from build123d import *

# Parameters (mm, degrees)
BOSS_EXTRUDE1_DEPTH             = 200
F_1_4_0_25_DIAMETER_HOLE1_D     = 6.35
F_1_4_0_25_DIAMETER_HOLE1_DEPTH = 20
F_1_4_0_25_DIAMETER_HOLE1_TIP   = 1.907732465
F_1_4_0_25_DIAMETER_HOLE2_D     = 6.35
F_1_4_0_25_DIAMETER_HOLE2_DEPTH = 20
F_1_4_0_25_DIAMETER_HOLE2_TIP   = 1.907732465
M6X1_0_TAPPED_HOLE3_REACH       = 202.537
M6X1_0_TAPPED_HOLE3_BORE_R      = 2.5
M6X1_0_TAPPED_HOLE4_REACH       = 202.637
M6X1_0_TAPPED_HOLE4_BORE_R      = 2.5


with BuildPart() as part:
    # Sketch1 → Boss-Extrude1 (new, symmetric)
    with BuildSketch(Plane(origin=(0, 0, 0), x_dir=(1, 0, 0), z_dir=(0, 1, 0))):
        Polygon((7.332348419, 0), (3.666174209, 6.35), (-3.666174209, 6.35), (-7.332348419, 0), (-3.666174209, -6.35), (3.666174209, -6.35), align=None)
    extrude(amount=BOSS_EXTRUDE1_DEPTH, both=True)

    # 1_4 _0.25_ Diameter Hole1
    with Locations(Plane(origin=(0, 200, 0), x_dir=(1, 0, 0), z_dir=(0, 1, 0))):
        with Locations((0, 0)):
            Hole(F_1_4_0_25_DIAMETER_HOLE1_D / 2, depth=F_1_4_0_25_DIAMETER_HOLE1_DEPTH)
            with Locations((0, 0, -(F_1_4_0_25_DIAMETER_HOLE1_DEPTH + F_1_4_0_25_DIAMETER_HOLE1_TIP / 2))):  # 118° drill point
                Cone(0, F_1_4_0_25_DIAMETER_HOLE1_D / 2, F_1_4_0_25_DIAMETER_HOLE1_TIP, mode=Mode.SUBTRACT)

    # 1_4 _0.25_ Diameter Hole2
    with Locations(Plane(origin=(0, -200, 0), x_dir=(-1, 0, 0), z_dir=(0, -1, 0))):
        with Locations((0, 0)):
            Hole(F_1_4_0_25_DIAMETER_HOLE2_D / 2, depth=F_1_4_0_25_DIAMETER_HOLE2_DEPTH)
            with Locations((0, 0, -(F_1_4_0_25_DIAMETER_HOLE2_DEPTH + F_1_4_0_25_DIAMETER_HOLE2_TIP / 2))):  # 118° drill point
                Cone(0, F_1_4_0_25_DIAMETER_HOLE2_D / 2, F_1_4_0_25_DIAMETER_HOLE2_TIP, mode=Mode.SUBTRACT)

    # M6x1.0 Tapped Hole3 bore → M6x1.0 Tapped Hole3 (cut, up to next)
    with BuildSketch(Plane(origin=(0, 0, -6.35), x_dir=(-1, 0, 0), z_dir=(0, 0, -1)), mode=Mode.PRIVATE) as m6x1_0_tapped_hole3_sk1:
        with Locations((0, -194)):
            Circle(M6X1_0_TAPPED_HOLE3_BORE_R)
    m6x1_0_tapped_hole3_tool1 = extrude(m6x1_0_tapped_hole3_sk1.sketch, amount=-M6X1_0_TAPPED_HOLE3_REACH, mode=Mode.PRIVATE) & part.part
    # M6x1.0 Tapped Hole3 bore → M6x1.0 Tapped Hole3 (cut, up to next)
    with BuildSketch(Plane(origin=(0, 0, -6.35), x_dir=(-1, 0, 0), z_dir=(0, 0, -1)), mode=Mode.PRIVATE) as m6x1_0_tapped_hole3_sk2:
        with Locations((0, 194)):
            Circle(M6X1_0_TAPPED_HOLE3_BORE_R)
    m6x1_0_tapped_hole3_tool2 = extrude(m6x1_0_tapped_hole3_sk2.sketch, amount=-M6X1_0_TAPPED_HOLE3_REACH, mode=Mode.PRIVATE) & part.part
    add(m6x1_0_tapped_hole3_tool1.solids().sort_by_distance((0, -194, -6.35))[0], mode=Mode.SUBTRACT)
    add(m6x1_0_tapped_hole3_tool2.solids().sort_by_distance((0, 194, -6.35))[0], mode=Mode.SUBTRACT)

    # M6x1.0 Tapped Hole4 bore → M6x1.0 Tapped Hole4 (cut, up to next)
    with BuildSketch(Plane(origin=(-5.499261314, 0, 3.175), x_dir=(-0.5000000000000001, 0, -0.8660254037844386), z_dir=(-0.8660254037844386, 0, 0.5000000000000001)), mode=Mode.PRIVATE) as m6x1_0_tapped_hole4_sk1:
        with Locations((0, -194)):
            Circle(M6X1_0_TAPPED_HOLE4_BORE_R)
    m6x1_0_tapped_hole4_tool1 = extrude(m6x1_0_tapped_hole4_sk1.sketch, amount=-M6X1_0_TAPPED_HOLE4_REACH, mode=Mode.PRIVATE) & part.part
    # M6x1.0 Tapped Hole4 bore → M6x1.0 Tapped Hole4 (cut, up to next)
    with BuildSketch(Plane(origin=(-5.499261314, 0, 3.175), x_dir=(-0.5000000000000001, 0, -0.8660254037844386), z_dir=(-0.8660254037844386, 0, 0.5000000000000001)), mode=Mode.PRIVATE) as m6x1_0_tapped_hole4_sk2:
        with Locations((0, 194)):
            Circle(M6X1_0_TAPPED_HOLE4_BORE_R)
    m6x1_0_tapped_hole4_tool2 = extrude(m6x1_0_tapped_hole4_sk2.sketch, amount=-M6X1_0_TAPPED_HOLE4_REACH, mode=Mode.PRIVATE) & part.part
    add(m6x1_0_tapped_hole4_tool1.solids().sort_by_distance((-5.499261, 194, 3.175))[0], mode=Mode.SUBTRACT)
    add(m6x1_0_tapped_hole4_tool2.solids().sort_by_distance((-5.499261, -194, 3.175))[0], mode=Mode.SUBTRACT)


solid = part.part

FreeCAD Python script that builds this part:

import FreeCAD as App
import Part
import Sketcher

V = App.Vector
Q = App.Units.Quantity

doc = App.newDocument("Part")
body = doc.addObject("PartDesign::Body", "Body")

sketch1 = doc.addObject("Sketcher::SketchObject", "Sketch")
body.addObject(sketch1)
sketch1.AttachmentSupport = (doc.XZ_Plane, [""])
sketch1.MapMode = "FlatFace"
sketch1.addGeometry([
    Part.LineSegment(V(7, 0, 0), V(4, -6, 0)),
    Part.LineSegment(V(4, -6, 0), V(-4, -6, 0)),
    Part.LineSegment(V(-4, -6, 0), V(-7, 0, 0)),
    Part.LineSegment(V(-7, 0, 0), V(-4, 6, 0)),
    Part.LineSegment(V(-4, 6, 0), V(4, 6, 0)),
    Part.LineSegment(V(4, 6, 0), V(7, 0, 0)),
], False)
sketch1.addConstraint([
    Sketcher.Constraint("Coincident", 0, 2, 1, 1),
    Sketcher.Constraint("Coincident", 1, 2, 2, 1),
    Sketcher.Constraint("Coincident", 2, 2, 3, 1),
    Sketcher.Constraint("Coincident", 3, 2, 4, 1),
    Sketcher.Constraint("Coincident", 4, 2, 5, 1),
    Sketcher.Constraint("Coincident", 5, 2, 0, 1),
    Sketcher.Constraint("Horizontal", 1),
    Sketcher.Constraint("Horizontal", 4),
    Sketcher.Constraint("Symmetric", 0, 2, 3, 2, -1, 1),
    Sketcher.Constraint("Symmetric", 2, 2, 5, 2, -1, 1),
    Sketcher.Constraint("PointOnObject", 2, 2, -1),
    Sketcher.Constraint("Parallel", 2, 5),
    Sketcher.Constraint("Vertical", 1, 2, 3, 2),
    Sketcher.Constraint("Angle", 0, Q("-120 deg")),
    Sketcher.Constraint("DistanceY", 1, 2, 3, 2, Q("12.7 mm")),
    Sketcher.Constraint("DistanceX", 1, 2, 1, 1, Q("7.332348 mm")),
])
pad1 = doc.addObject("PartDesign::Pad", "Pad")
body.addObject(pad1)
pad1.Profile = sketch1
pad1.Length = 400
pad1.Midplane = True

sketch2 = doc.addObject("Sketcher::SketchObject", "Sketch001")
body.addObject(sketch2)
sketch2.AttachmentSupport = (doc.XZ_Plane, [""])
sketch2.MapMode = "FlatFace"
sketch2.AttachmentOffset = App.Placement(V(0, 0, -200), App.Rotation())
sketch2.addGeometry(Part.Circle(V(0, 0, 0), V(0, 0, 1), 3.2), False)
sketch2.addConstraint([
    Sketcher.Constraint("Coincident", 0, 3, -1, 1),
    Sketcher.Constraint("Diameter", 0, Q("6.35 mm")),
])
doc.recompute()
hole = doc.addObject("PartDesign::Hole", "Hole")
body.addObject(hole)
hole.Profile = sketch2
hole.ThreadType = "None"
hole.Diameter = 6.35
hole.DepthType = "Dimension"
hole.Depth = 20
hole.DrillPoint = "Angled"
hole.DrillPointAngle = 118
hole.Reversed = True

sketch3 = doc.addObject("Sketcher::SketchObject", "Sketch002")
body.addObject(sketch3)
sketch3.AttachmentSupport = (doc.XZ_Plane, [""])
sketch3.MapMode = "FlatFace"
sketch3.AttachmentOffset = App.Placement(V(0, 0, 200), App.Rotation())
sketch3.addGeometry(Part.Circle(V(0, 0, 0), V(0, 0, 1), 3.2), False)
sketch3.addConstraint([
    Sketcher.Constraint("Coincident", 0, 3, -1, 1),
    Sketcher.Constraint("Diameter", 0, Q("6.35 mm")),
])
doc.recompute()
hole2 = doc.addObject("PartDesign::Hole", "Hole001")
body.addObject(hole2)
hole2.Profile = sketch3
hole2.ThreadType = "None"
hole2.Diameter = 6.35
hole2.DepthType = "Dimension"
hole2.Depth = 20
hole2.DrillPoint = "Angled"
hole2.DrillPointAngle = 118

sketch4 = doc.addObject("Sketcher::SketchObject", "Sketch003")
body.addObject(sketch4)
sketch4.AttachmentSupport = (doc.XY_Plane, [""])
sketch4.MapMode = "FlatFace"
sketch4.AttachmentOffset = App.Placement(V(0, 0, -6.35), App.Rotation())
sketch4.addGeometry(Part.Circle(V(0, -194, 0), V(0, 0, 1), 2.5), False)
sketch4.addConstraint([
    Sketcher.Constraint("PointOnObject", 0, 3, -2),
    Sketcher.Constraint("Diameter", 0, Q("5 mm")),
    Sketcher.Constraint("DistanceY", 0, 3, -1, 1, Q("194 mm")),
])
pocket1 = doc.addObject("PartDesign::Pocket", "Pocket")
body.addObject(pocket1)
pocket1.Profile = sketch4
pocket1.Length = 4.392802
pocket1.Reversed = True

sketch5 = doc.addObject("Sketcher::SketchObject", "Sketch004")
body.addObject(sketch5)
sketch5.AttachmentSupport = (doc.XY_Plane, [""])
sketch5.MapMode = "FlatFace"
sketch5.AttachmentOffset = App.Placement(V(0, 0, -6.35), App.Rotation())
sketch5.addGeometry(Part.Circle(V(0, 194, 0), V(0, 0, 1), 2.5), False)
sketch5.addConstraint([
    Sketcher.Constraint("PointOnObject", 0, 3, -2),
    Sketcher.Constraint("Diameter", 0, Q("5 mm")),
    Sketcher.Constraint("DistanceY", -1, 1, 0, 3, Q("194 mm")),
])
pocket2 = doc.addObject("PartDesign::Pocket", "Pocket001")
body.addObject(pocket2)
pocket2.Profile = sketch5
pocket2.Length = 4.392802
pocket2.Reversed = True

sketch6 = doc.addObject("Sketcher::SketchObject", "Sketch005")
body.addObject(sketch6)
sketch6.Placement = App.Placement(V(-5.499261, 0, 3.175), App.Rotation(V(-0.5, 0, -0.866025404), V(0, -1, 0), V(-0.866025404, 0, 0.5), "ZXY"))
sketch6.addGeometry(Part.Circle(V(0, -194, 0), V(0, 0, 1), 2.5), False)
sketch6.addConstraint([
    Sketcher.Constraint("PointOnObject", 0, 3, -2),
    Sketcher.Constraint("Diameter", 0, Q("5 mm")),
    Sketcher.Constraint("DistanceY", 0, 3, -1, 1, Q("194 mm")),
])
pocket3 = doc.addObject("PartDesign::Pocket", "Pocket002")
body.addObject(pocket3)
pocket3.Profile = sketch6
pocket3.Type = "UpToFirst"

sketch7 = doc.addObject("Sketcher::SketchObject", "Sketch006")
body.addObject(sketch7)
sketch7.Placement = App.Placement(V(-5.499261, 0, 3.175), App.Rotation(V(-0.5, 0, -0.866025404), V(0, -1, 0), V(-0.866025404, 0, 0.5), "ZXY"))
sketch7.addGeometry(Part.Circle(V(0, 194, 0), V(0, 0, 1), 2.5), False)
sketch7.addConstraint([
    Sketcher.Constraint("PointOnObject", 0, 3, -2),
    Sketcher.Constraint("Diameter", 0, Q("5 mm")),
    Sketcher.Constraint("DistanceY", -1, 1, 0, 3, Q("194 mm")),
])
pocket4 = doc.addObject("PartDesign::Pocket", "Pocket003")
body.addObject(pocket4)
pocket4.Profile = sketch7
pocket4.Type = "UpToFirst"

doc.recompute()
